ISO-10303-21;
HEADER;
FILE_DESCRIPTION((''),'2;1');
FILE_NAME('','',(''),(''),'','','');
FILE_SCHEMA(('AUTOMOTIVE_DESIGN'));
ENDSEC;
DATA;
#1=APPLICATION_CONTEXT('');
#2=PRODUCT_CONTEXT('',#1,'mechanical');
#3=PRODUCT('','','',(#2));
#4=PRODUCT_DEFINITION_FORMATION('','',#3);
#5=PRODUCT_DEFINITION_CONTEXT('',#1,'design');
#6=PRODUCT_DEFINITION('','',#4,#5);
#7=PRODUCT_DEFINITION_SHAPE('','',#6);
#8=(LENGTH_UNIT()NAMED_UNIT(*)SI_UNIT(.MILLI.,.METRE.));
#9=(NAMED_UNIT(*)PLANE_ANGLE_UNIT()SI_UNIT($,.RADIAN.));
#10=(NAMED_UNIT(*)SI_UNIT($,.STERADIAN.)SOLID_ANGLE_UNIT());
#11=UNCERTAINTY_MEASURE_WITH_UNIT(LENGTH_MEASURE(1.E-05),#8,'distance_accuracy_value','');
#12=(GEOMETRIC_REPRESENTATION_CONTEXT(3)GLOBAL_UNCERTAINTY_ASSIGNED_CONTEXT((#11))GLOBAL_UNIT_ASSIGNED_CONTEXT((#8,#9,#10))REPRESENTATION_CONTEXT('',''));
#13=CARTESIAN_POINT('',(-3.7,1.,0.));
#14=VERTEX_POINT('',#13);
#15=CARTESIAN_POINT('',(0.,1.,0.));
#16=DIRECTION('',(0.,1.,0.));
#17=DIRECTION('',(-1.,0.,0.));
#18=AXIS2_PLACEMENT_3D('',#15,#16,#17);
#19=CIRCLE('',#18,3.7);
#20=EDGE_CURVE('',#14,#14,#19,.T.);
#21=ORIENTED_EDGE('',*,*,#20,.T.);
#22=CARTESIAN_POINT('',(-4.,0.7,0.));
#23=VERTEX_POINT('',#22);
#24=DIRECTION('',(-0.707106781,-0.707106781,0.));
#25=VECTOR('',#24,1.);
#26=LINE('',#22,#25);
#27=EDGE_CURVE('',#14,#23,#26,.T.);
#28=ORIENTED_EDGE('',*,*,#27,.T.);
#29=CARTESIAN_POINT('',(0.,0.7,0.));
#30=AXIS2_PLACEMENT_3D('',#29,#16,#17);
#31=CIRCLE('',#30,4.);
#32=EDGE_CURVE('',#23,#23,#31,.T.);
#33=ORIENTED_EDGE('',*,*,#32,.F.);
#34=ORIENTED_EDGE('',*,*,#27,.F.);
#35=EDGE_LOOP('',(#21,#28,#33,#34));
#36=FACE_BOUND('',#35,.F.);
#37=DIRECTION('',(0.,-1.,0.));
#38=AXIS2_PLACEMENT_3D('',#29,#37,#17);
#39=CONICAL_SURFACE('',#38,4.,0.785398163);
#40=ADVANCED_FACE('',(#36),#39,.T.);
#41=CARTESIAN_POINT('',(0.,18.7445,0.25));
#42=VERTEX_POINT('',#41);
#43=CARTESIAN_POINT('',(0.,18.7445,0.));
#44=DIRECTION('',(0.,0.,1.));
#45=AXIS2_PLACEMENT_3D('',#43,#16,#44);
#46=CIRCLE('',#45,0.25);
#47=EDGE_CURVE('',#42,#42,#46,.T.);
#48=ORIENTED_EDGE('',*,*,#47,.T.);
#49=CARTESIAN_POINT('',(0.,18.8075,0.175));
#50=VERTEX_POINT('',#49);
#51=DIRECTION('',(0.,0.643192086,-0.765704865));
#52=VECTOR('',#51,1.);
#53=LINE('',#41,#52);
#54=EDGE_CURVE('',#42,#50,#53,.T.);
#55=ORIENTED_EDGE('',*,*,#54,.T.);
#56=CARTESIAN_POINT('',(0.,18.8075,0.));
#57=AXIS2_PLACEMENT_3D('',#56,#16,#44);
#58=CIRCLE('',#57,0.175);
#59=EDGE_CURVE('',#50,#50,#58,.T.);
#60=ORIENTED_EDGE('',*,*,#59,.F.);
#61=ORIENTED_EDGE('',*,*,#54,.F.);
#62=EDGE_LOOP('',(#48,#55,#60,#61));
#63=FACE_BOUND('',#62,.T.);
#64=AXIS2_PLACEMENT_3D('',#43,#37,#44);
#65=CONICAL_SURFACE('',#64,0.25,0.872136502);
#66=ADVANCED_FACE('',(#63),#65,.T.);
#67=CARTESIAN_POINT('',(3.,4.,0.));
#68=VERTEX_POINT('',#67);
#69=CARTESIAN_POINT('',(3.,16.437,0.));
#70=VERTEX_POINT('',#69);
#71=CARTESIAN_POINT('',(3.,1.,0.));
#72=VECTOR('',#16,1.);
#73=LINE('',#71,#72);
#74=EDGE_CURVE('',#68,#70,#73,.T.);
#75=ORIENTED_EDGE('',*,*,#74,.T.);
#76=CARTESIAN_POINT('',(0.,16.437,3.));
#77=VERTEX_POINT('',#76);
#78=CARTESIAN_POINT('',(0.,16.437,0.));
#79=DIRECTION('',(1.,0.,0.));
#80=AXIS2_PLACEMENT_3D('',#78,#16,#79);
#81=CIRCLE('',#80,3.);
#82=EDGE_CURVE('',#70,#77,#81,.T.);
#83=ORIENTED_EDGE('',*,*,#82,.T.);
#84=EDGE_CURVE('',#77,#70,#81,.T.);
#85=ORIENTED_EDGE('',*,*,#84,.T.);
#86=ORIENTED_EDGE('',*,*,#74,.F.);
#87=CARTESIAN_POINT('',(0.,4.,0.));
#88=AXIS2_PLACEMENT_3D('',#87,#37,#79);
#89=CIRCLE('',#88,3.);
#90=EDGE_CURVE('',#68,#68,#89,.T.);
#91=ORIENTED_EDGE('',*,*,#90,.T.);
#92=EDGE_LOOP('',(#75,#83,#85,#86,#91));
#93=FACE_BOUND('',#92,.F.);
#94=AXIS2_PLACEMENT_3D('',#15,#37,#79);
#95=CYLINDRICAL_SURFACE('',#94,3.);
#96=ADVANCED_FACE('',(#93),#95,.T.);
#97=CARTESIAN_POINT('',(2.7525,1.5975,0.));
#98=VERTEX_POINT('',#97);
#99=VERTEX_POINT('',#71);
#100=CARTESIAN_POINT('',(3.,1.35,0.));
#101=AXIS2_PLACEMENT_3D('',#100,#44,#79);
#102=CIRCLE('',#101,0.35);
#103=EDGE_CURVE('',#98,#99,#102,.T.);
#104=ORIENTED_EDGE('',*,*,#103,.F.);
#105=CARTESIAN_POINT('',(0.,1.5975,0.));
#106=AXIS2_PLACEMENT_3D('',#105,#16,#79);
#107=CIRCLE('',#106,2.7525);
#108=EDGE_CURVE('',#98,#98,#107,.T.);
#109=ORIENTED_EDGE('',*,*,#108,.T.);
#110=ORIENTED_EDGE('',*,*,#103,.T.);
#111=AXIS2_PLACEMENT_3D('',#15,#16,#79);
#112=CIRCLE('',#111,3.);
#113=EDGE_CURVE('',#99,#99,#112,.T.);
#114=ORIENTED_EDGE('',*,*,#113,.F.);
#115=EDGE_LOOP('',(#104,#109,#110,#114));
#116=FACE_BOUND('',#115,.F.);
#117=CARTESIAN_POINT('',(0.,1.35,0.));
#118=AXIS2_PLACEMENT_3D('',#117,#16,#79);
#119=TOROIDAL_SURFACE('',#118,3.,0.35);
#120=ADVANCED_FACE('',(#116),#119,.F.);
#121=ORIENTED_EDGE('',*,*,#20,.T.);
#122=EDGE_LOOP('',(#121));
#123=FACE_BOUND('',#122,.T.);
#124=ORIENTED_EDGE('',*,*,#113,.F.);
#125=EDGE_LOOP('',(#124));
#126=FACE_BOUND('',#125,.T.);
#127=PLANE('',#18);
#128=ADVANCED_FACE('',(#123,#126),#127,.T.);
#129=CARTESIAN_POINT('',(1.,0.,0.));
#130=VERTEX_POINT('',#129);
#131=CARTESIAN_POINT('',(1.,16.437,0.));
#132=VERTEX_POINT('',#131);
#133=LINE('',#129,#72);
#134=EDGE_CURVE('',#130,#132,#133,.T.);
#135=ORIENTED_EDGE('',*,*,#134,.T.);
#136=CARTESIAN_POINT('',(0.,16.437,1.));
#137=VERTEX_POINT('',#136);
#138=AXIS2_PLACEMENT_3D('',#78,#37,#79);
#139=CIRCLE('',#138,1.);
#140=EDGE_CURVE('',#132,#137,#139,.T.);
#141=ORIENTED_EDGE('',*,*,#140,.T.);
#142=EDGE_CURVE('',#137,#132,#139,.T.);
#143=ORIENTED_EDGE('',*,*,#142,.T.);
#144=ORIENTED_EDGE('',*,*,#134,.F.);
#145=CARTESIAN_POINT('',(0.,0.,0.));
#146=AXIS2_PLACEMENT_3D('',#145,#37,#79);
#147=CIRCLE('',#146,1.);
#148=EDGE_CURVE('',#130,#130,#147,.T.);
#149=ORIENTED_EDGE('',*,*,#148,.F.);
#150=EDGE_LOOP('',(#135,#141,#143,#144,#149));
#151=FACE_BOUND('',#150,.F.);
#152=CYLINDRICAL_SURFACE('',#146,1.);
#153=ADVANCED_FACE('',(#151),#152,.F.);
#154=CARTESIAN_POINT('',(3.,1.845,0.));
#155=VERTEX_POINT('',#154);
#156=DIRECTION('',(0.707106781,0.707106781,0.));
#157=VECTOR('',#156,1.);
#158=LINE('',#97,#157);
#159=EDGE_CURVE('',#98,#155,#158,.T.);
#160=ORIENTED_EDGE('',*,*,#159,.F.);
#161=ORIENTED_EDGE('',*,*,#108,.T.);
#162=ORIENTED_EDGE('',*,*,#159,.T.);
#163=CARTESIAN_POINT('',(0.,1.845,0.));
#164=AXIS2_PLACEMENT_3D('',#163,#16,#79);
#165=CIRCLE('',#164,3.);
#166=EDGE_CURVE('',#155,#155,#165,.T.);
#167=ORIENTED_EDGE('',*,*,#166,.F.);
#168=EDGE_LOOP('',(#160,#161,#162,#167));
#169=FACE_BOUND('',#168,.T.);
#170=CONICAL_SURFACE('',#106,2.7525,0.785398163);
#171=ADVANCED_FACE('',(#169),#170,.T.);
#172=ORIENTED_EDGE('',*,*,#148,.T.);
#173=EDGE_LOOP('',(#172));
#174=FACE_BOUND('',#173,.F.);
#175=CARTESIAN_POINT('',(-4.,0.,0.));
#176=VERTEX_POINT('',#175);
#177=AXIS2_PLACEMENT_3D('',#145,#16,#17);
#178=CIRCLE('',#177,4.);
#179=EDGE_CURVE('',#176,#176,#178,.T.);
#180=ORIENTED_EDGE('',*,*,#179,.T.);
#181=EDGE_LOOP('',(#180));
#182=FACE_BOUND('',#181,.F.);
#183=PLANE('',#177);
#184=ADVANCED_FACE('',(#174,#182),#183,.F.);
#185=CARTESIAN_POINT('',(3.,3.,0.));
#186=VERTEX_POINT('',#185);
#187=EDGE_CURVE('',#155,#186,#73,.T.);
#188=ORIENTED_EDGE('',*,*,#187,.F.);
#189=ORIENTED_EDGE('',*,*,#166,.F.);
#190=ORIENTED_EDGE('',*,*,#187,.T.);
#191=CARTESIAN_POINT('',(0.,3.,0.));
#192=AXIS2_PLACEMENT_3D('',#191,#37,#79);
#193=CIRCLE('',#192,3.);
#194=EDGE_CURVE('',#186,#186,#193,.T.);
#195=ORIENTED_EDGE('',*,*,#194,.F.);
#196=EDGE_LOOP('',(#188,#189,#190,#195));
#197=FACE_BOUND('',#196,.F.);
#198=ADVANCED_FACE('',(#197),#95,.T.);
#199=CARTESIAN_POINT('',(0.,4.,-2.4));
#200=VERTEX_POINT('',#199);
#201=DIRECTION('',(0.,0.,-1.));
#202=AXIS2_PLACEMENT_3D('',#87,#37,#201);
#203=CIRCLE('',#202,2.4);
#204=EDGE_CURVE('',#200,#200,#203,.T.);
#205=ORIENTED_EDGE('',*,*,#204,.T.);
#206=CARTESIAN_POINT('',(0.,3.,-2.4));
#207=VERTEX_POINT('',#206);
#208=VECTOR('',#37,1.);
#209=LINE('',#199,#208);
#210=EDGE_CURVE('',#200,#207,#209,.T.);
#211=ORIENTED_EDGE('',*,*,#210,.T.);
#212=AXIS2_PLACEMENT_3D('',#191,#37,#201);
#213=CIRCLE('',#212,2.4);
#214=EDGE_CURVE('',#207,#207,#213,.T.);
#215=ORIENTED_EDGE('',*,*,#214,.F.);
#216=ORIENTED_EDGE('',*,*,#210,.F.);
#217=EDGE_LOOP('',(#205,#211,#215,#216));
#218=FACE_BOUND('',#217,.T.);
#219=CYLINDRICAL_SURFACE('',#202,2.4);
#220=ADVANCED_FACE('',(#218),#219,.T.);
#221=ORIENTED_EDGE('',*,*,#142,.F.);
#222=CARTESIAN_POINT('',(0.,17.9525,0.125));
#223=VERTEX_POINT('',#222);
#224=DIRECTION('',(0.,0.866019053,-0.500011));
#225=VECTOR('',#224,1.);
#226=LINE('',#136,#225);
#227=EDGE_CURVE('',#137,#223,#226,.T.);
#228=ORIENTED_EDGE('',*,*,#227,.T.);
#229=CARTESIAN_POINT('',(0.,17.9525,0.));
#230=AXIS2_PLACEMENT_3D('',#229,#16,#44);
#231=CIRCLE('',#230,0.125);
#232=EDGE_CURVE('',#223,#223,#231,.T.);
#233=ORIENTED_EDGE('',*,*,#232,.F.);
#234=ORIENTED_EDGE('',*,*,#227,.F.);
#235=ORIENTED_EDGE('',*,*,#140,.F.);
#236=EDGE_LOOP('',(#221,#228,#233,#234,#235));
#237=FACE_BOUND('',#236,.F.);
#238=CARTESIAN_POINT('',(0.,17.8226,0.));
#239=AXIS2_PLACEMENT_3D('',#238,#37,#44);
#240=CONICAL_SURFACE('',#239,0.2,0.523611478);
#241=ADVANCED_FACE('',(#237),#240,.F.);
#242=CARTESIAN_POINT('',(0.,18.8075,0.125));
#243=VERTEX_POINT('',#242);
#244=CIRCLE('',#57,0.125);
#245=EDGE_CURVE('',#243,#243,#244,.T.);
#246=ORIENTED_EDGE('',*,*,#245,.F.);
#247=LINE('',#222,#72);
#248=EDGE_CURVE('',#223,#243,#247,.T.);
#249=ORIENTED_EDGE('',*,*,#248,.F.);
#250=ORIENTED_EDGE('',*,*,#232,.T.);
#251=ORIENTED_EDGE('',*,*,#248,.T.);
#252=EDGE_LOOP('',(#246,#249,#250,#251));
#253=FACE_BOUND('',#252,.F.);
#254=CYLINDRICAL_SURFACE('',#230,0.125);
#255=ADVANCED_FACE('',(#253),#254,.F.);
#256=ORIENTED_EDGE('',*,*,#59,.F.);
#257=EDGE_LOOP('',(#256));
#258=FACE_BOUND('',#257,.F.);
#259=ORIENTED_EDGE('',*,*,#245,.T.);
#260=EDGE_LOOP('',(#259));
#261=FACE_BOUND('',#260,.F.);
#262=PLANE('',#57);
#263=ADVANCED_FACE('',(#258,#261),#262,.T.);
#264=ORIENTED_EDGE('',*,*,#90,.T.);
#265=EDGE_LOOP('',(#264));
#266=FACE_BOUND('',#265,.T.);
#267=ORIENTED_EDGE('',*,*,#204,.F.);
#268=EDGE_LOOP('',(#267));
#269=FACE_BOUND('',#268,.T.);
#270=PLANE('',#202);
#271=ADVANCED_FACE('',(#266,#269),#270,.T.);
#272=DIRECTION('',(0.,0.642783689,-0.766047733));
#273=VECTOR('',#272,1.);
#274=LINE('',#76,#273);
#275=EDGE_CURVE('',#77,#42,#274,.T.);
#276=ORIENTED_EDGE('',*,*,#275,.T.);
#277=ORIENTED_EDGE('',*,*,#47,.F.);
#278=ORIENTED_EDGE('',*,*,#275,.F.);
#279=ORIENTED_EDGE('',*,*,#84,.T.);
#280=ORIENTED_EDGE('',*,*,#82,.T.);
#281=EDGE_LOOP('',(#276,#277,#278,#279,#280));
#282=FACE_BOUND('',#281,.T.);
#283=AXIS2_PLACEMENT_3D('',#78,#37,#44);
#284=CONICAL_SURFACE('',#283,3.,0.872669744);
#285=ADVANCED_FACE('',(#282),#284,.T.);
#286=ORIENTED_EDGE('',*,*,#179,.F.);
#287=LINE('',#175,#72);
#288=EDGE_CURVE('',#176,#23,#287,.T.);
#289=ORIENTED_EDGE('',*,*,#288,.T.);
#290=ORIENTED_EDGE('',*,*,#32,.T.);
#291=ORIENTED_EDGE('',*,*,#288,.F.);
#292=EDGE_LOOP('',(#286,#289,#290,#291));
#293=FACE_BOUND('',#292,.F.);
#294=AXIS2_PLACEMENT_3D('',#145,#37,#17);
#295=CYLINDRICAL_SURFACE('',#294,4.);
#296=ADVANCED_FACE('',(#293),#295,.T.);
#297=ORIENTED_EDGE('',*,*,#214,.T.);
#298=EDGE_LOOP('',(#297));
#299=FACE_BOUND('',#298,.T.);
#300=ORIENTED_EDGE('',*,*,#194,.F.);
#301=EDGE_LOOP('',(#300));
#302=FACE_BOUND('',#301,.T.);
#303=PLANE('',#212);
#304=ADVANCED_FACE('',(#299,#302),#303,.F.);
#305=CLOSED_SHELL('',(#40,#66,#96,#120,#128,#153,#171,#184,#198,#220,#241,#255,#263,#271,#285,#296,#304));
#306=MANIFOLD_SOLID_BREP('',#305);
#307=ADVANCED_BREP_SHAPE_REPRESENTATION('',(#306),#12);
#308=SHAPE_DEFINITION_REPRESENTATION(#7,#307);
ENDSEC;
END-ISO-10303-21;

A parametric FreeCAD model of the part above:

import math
import FreeCAD as App
import Part
import Sketcher
from FreeCAD import Vector
Q = App.Units.Quantity


def edges_at(feature, points):
    """Names of the edges that pass closest to the given points."""
    edges = feature.Shape.Edges
    near = lambda p: min(range(len(edges)), key=lambda i: edges[i].distToShape(Part.Vertex(*p))[0])
    return sorted({f"Edge{near(p) + 1}" for p in points})


def add_polygon(sketch, points):
    """Adds a closed chain of lines whose ends are joined by coincident constraints."""
    first, n = sketch.GeometryCount, len(points)
    for a, b in zip(points, points[1:] + points[:1]):
        sketch.addGeometry(Part.LineSegment(App.Vector(*a, 0), App.Vector(*b, 0)), False)
    for i in range(n):
        sketch.addConstraint(Sketcher.Constraint("Coincident", first + i, 2, first + (i + 1) % n, 1))

doc = App.newDocument("Part")
body = doc.addObject("PartDesign::Body", "Body")

# Sketch on XZ plane
sketch1 = body.newObject("Sketcher::SketchObject", "Sketch")
sketch1.AttachmentSupport = (doc.getObject("XZ_Plane"), [""])
sketch1.MapMode = "FlatFace"
sketch1.addGeometry(Part.Circle(Vector(0, 0, 0), Vector(0, 0, 1), 4), False)
sketch1.addConstraint([
    Sketcher.Constraint("Coincident", 0, 3, -1, 1),
    Sketcher.Constraint("Diameter", 0, 8.0),
])
pad1 = body.newObject("PartDesign::Pad", "Pad")
pad1.Profile = sketch1
pad1.Length = 1
pad1.Reversed = True

# Sketch on XZ plane
sketch2 = body.newObject("Sketcher::SketchObject", "Sketch001")
sketch2.AttachmentSupport = (doc.getObject("XZ_Plane"), [""])
sketch2.MapMode = "FlatFace"
sketch2.AttachmentOffset = App.Placement(Vector(0, 0, -1), App.Rotation())
sketch2.addGeometry(Part.Circle(Vector(0, 0, 0), Vector(0, 0, 1), 3), False)
sketch2.addConstraint([
    Sketcher.Constraint("Coincident", 0, 3, -1, 1),
    Sketcher.Constraint("Diameter", 0, 6.0),
])
pad2 = body.newObject("PartDesign::Pad", "Pad001")
pad2.Profile = sketch2
pad2.Length = 15.437
pad2.Reversed = True

# Sketch on XZ plane
sketch3 = body.newObject("Sketcher::SketchObject", "Sketch002")
sketch3.AttachmentSupport = (doc.getObject("XZ_Plane"), [""])
sketch3.MapMode = "FlatFace"
sketch3.addGeometry(Part.Circle(Vector(0, 0, 0), Vector(0, 0, 1), 1), False)
sketch3.addConstraint([
    Sketcher.Constraint("Coincident", 0, 3, -1, 1),
    Sketcher.Constraint("Diameter", 0, 2.0),
])
pocket1 = body.newObject("PartDesign::Pocket", "Pocket")
pocket1.Profile = sketch3
pocket1.Length = 21

# Sketch on YZ plane
sketch4 = body.newObject("Sketcher::SketchObject", "Sketch003")
sketch4.AttachmentSupport = (doc.getObject("YZ_Plane"), [""])
sketch4.MapMode = "FlatFace"
add_polygon(sketch4, [(18.74, 0.25), (16.44, 3), (16.44, 1), (17.95, 0.12), (18.81, 0.12), (18.81, 0.17)])  # lines 0-5
sketch4.addConstraint([
    Sketcher.Constraint("Vertical", 1),
    Sketcher.Constraint("Horizontal", 3),
    Sketcher.Constraint("Vertical", 4),
    Sketcher.Constraint("DistanceY", 4, 1, 4, 2, 0.05),
    Sketcher.Constraint("DistanceY", 1, 2, 1, 1, 2.0),
    Sketcher.Constraint("Angle", 0, Q("129.9997 deg")),
    Sketcher.Constraint("Angle", 2, Q("-30.0007 deg")),
    Sketcher.Constraint("DistanceY", -1, 1, 2, 2, 0.125),
    Sketcher.Constraint("DistanceY", -1, 1, 0, 2, 3.0),
    Sketcher.Constraint("DistanceY", 3, 2, 5, 2, 0.125),
    Sketcher.Constraint("Angle", 5, Q("130.0303 deg")),
    Sketcher.Constraint("DistanceX", -1, 1, 0, 2, 16.437),
])
revolution = body.newObject("PartDesign::Revolution", "Revolution")
revolution.Profile = sketch4
revolution.ReferenceAxis = (sketch4, ["H_Axis"])
revolution.Angle = 360

# Sketch on XY plane
sketch5 = body.newObject("Sketcher::SketchObject", "Sketch004")
sketch5.AttachmentSupport = (doc.getObject("XY_Plane"), [""])
sketch5.MapMode = "FlatFace"
sketch5.addGeometry([
    Part.LineSegment(Vector(3.35, 1.35, 0), Vector(3.37, 2.22, 0)),
    Part.LineSegment(Vector(3.37, 2.22, 0), Vector(2.75, 1.6, 0)),
    Part.ArcOfCircle(Part.Circle(Vector(3, 1.35, 0), Vector(0, 0, 1), 0.35), math.radians(135), math.radians(360)),
], False)
sketch5.addConstraint([
    Sketcher.Constraint("Coincident", 0, 2, 1, 1),
    Sketcher.Constraint("Tangent", 1, 2, 2, 1),
    Sketcher.Constraint("Coincident", 2, 2, 0, 1),
    Sketcher.Constraint("Radius", 2, 0.35),
    Sketcher.Constraint("Angle", 1, Q("-135 deg")),
    Sketcher.Constraint("DistanceX", -1, 1, 2, 3, 3.0),
    Sketcher.Constraint("DistanceY", -1, 1, 2, 3, 1.35),
    Sketcher.Constraint("DistanceY", -1, 1, 2, 2, 1.35),
    Sketcher.Constraint("Distance", 1, 0.878),
])
groove = body.newObject("PartDesign::Groove", "Groove")
groove.Profile = sketch5
groove.ReferenceAxis = (sketch5, ["V_Axis"])
groove.Angle = 360
doc.recompute()

chamfer = body.newObject("PartDesign::Chamfer", "Chamfer")
chamfer.Base = (groove, edges_at(groove, [(4, 1, 0)]))
chamfer.Size = 0.3

# Sketch on YZ plane
sketch6 = body.newObject("Sketcher::SketchObject", "Sketch005")
sketch6.AttachmentSupport = (doc.getObject("YZ_Plane"), [""])
sketch6.MapMode = "FlatFace"
add_polygon(sketch6, [(3, -2.4), (3, -3), (4, -3), (4, -2.4)])  # lines 0-3
sketch6.addConstraint([
    Sketcher.Constraint("Vertical", 0),
    Sketcher.Constraint("Horizontal", 1),
    Sketcher.Constraint("Vertical", 2),
    Sketcher.Constraint("Horizontal", 3),
    Sketcher.Constraint("DistanceX", 1, 1, 1, 2, 1.0),
    Sketcher.Constraint("DistanceY", 0, 2, 0, 1, 0.6),
    Sketcher.Constraint("DistanceX", -1, 1, 0, 2, 3.0),
    Sketcher.Constraint("DistanceY", 0, 2, -1, 1, 3.0),
])
groove2 = body.newObject("PartDesign::Groove", "Groove001")
groove2.Profile = sketch6
groove2.ReferenceAxis = (sketch6, ["H_Axis"])
groove2.Angle = 360

doc.recompute()
